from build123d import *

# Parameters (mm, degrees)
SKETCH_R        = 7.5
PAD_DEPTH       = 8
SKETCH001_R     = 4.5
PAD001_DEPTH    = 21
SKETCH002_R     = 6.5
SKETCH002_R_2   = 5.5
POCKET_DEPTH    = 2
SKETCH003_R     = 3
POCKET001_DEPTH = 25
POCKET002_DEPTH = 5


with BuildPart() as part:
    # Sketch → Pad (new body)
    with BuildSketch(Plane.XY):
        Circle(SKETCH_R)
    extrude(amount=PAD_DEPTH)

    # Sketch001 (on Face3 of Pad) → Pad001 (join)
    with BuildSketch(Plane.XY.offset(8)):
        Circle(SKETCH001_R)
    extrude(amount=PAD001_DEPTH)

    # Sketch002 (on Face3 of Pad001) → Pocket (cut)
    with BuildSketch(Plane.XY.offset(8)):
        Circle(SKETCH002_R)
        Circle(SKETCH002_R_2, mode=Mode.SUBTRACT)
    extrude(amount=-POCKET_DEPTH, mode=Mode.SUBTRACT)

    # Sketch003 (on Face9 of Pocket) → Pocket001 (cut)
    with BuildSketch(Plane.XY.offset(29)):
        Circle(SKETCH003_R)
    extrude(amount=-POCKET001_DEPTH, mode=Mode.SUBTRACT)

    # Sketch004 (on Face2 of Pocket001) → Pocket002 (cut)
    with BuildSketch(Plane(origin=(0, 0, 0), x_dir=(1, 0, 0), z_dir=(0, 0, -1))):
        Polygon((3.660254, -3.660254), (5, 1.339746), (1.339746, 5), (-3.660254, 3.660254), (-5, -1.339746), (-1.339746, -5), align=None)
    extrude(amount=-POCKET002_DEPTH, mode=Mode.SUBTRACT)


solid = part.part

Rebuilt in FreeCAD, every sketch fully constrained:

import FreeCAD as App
import Part
import Sketcher

V = App.Vector
Q = App.Units.Quantity

doc = App.newDocument("Part")
body = doc.addObject("PartDesign::Body", "Body")

sketch1 = doc.addObject("Sketcher::SketchObject", "Sketch")
body.addObject(sketch1)
sketch1.AttachmentSupport = (doc.XY_Plane, [""])
sketch1.MapMode = "FlatFace"
sketch1.addGeometry(Part.Circle(V(0, 0, 0), V(0, 0, 1), 8), False)
sketch1.addConstraint([
    Sketcher.Constraint("Coincident", 0, 3, -1, 1),
    Sketcher.Constraint("Diameter", 0, Q("15 mm")),
])
pad1 = doc.addObject("PartDesign::Pad", "Pad")
body.addObject(pad1)
pad1.Profile = sketch1
pad1.Length = 8

sketch2 = doc.addObject("Sketcher::SketchObject", "Sketch001")
body.addObject(sketch2)
sketch2.AttachmentSupport = (doc.XY_Plane, [""])
sketch2.MapMode = "FlatFace"
sketch2.AttachmentOffset = App.Placement(V(0, 0, 8), App.Rotation())
sketch2.addGeometry(Part.Circle(V(0, 0, 0), V(0, 0, 1), 4.5), False)
sketch2.addConstraint([
    Sketcher.Constraint("Coincident", 0, 3, -1, 1),
    Sketcher.Constraint("Diameter", 0, Q("9 mm")),
])
pad2 = doc.addObject("PartDesign::Pad", "Pad001")
body.addObject(pad2)
pad2.Profile = sketch2
pad2.Length = 21

sketch3 = doc.addObject("Sketcher::SketchObject", "Sketch002")
body.addObject(sketch3)
sketch3.AttachmentSupport = (doc.XY_Plane, [""])
sketch3.MapMode = "FlatFace"
sketch3.AttachmentOffset = App.Placement(V(0, 0, 8), App.Rotation())
sketch3.addGeometry([
    Part.Circle(V(0, 0, 0), V(0, 0, 1), 6),
    Part.Circle(V(0, 0, 0), V(0, 0, 1), 6),
], False)
sketch3.addConstraint([
    Sketcher.Constraint("Coincident", 0, 3, -1, 1),
    Sketcher.Constraint("Coincident", 1, 3, -1, 1),
    Sketcher.Constraint("Diameter", 0, Q("13 mm")),
    Sketcher.Constraint("Diameter", 1, Q("11 mm")),
])
pocket1 = doc.addObject("PartDesign::Pocket", "Pocket")
body.addObject(pocket1)
pocket1.Profile = sketch3
pocket1.Length = 2

sketch4 = doc.addObject("Sketcher::SketchObject", "Sketch003")
body.addObject(sketch4)
sketch4.AttachmentSupport = (doc.XY_Plane, [""])
sketch4.MapMode = "FlatFace"
sketch4.AttachmentOffset = App.Placement(V(0, 0, 29), App.Rotation())
sketch4.addGeometry(Part.Circle(V(0, 0, 0), V(0, 0, 1), 3), False)
sketch4.addConstraint([
    Sketcher.Constraint("Coincident", 0, 3, -1, 1),
    Sketcher.Constraint("Diameter", 0, Q("6 mm")),
])
pocket2 = doc.addObject("PartDesign::Pocket", "Pocket001")
body.addObject(pocket2)
pocket2.Profile = sketch4
pocket2.Length = 25

sketch5 = doc.addObject("Sketcher::SketchObject", "Sketch004")
body.addObject(sketch5)
sketch5.AttachmentSupport = (doc.XY_Plane, [""])
sketch5.MapMode = "FlatFace"
sketch5.addGeometry([
    Part.LineSegment(V(4, 4, 0), V(5, -1, 0)),
    Part.LineSegment(V(5, -1, 0), V(1, -5, 0)),
    Part.LineSegment(V(1, -5, 0), V(-4, -4, 0)),
    Part.LineSegment(V(-4, -4, 0), V(-5, 1, 0)),
    Part.LineSegment(V(-5, 1, 0), V(-1, 5, 0)),
    Part.LineSegment(V(-1, 5, 0), V(4, 4, 0)),
], False)
sketch5.addConstraint([
    Sketcher.Constraint("Coincident", 0, 2, 1, 1),
    Sketcher.Constraint("Coincident", 1, 2, 2, 1),
    Sketcher.Constraint("Coincident", 2, 2, 3, 1),
    Sketcher.Constraint("Coincident", 3, 2, 4, 1),
    Sketcher.Constraint("Coincident", 4, 2, 5, 1),
    Sketcher.Constraint("Coincident", 5, 2, 0, 1),
    Sketcher.Constraint("Symmetric", 0, 2, 3, 2, -1, 1),
    Sketcher.Constraint("Symmetric", 1, 2, 4, 2, -1, 1),
    Sketcher.Constraint("Symmetric", 2, 2, 5, 2, -1, 1),
    Sketcher.Constraint("Equal", 0, 1),
    Sketcher.Constraint("Equal", 1, 2),
    Sketcher.Constraint("Angle", 0, Q("-75 deg")),
    Sketcher.Constraint("Angle", 1, Q("-135 deg")),
    Sketcher.Constraint("Angle", 2, Q("165 deg")),
    Sketcher.Constraint("DistanceX", -1, 1, 0, 2, Q("5 mm")),
])
pocket3 = doc.addObject("PartDesign::Pocket", "Pocket002")
body.addObject(pocket3)
pocket3.Profile = sketch5
pocket3.Length = 5
pocket3.Reversed = True

doc.recompute()
